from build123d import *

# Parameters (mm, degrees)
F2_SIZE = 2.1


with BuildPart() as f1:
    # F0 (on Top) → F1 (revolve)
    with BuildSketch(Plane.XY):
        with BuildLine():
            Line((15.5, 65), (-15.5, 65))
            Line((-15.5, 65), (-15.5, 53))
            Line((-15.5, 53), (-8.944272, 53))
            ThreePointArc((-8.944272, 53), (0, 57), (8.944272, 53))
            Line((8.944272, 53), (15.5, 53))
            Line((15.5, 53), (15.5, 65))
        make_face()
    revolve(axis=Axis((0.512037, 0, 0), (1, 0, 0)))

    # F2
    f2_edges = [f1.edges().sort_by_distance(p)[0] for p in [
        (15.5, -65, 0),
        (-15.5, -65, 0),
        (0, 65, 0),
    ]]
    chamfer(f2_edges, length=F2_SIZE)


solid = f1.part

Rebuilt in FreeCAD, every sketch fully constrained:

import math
import FreeCAD as App
import Part
import Sketcher


def edges_at(feature, points):
    """Names of the edges that pass closest to the given points."""
    edges = feature.Shape.Edges
    near = lambda p: min(range(len(edges)), key=lambda i: edges[i].distToShape(Part.Vertex(*p))[0])
    return sorted({f"Edge{near(p) + 1}" for p in points})

doc = App.newDocument("Part")
body = doc.addObject("PartDesign::Body", "Body")

# Sketch on XY plane
sketch1 = doc.addObject("Sketcher::SketchObject", "Sketch")
body.addObject(sketch1)
sketch1.AttachmentSupport = (doc.XY_Plane, [""])
sketch1.MapMode = "FlatFace"
sketch1.addGeometry([
    Part.LineSegment(App.Vector(15.5, 65, 0), App.Vector(-15.5, 65, 0)),  # 0
    Part.LineSegment(App.Vector(-15.5, 65, 0), App.Vector(-15.5, 53, 0)),  # 1
    Part.LineSegment(App.Vector(-15.5, 53, 0), App.Vector(-8.944272, 53, 0)),  # 2
    Part.ArcOfCircle(Part.Circle(App.Vector(0, 45, 0), App.Vector(0, 0, 1), 12), math.radians(41.810315), math.radians(138.189685)),  # 3
    Part.LineSegment(App.Vector(8.944272, 53, 0), App.Vector(15.5, 53, 0)),  # 4
    Part.LineSegment(App.Vector(15.5, 53, 0), App.Vector(15.5, 65, 0)),  # 5
], False)
sketch1.addConstraint([
    Sketcher.Constraint("Coincident", 0, 2, 1, 1),
    Sketcher.Constraint("Coincident", 1, 2, 2, 1),
    Sketcher.Constraint("Coincident", 2, 2, 3, 2),
    Sketcher.Constraint("Coincident", 3, 1, 4, 1),
    Sketcher.Constraint("Coincident", 4, 2, 5, 1),
    Sketcher.Constraint("Coincident", 5, 2, 0, 1),
    Sketcher.Constraint("Horizontal", 0),
    Sketcher.Constraint("Vertical", 1),
    Sketcher.Constraint("Horizontal", 2),
    Sketcher.Constraint("Horizontal", 4),
    Sketcher.Constraint("Vertical", 5),
    Sketcher.Constraint("Symmetric", 2, 2, 3, 1, -2),
    Sketcher.Constraint("Equal", 2, 4),
    Sketcher.Constraint("Radius", 3, 12.0),
    Sketcher.Constraint("DistanceX", 0, 2, 0, 1, 31.0),
    Sketcher.Constraint("DistanceY", 1, 2, 1, 1, 12.0),
    Sketcher.Constraint("DistanceY", -1, 1, 3, 3, 45.0),
    Sketcher.Constraint("DistanceY", -1, 1, 0, 2, 65.0),
])
revolution = doc.addObject("PartDesign::Revolution", "Revolution")
body.addObject(revolution)
revolution.Profile = sketch1
revolution.ReferenceAxis = (sketch1, ["H_Axis"])
revolution.Angle = 360
doc.recompute()

chamfer = doc.addObject("PartDesign::Chamfer", "Chamfer")
body.addObject(chamfer)
chamfer.Base = (revolution, edges_at(revolution, [(15.5, -65, 0), (-15.5, -65, 0), (0, 65, 0)]))
chamfer.Size = 2.1

doc.recompute()
